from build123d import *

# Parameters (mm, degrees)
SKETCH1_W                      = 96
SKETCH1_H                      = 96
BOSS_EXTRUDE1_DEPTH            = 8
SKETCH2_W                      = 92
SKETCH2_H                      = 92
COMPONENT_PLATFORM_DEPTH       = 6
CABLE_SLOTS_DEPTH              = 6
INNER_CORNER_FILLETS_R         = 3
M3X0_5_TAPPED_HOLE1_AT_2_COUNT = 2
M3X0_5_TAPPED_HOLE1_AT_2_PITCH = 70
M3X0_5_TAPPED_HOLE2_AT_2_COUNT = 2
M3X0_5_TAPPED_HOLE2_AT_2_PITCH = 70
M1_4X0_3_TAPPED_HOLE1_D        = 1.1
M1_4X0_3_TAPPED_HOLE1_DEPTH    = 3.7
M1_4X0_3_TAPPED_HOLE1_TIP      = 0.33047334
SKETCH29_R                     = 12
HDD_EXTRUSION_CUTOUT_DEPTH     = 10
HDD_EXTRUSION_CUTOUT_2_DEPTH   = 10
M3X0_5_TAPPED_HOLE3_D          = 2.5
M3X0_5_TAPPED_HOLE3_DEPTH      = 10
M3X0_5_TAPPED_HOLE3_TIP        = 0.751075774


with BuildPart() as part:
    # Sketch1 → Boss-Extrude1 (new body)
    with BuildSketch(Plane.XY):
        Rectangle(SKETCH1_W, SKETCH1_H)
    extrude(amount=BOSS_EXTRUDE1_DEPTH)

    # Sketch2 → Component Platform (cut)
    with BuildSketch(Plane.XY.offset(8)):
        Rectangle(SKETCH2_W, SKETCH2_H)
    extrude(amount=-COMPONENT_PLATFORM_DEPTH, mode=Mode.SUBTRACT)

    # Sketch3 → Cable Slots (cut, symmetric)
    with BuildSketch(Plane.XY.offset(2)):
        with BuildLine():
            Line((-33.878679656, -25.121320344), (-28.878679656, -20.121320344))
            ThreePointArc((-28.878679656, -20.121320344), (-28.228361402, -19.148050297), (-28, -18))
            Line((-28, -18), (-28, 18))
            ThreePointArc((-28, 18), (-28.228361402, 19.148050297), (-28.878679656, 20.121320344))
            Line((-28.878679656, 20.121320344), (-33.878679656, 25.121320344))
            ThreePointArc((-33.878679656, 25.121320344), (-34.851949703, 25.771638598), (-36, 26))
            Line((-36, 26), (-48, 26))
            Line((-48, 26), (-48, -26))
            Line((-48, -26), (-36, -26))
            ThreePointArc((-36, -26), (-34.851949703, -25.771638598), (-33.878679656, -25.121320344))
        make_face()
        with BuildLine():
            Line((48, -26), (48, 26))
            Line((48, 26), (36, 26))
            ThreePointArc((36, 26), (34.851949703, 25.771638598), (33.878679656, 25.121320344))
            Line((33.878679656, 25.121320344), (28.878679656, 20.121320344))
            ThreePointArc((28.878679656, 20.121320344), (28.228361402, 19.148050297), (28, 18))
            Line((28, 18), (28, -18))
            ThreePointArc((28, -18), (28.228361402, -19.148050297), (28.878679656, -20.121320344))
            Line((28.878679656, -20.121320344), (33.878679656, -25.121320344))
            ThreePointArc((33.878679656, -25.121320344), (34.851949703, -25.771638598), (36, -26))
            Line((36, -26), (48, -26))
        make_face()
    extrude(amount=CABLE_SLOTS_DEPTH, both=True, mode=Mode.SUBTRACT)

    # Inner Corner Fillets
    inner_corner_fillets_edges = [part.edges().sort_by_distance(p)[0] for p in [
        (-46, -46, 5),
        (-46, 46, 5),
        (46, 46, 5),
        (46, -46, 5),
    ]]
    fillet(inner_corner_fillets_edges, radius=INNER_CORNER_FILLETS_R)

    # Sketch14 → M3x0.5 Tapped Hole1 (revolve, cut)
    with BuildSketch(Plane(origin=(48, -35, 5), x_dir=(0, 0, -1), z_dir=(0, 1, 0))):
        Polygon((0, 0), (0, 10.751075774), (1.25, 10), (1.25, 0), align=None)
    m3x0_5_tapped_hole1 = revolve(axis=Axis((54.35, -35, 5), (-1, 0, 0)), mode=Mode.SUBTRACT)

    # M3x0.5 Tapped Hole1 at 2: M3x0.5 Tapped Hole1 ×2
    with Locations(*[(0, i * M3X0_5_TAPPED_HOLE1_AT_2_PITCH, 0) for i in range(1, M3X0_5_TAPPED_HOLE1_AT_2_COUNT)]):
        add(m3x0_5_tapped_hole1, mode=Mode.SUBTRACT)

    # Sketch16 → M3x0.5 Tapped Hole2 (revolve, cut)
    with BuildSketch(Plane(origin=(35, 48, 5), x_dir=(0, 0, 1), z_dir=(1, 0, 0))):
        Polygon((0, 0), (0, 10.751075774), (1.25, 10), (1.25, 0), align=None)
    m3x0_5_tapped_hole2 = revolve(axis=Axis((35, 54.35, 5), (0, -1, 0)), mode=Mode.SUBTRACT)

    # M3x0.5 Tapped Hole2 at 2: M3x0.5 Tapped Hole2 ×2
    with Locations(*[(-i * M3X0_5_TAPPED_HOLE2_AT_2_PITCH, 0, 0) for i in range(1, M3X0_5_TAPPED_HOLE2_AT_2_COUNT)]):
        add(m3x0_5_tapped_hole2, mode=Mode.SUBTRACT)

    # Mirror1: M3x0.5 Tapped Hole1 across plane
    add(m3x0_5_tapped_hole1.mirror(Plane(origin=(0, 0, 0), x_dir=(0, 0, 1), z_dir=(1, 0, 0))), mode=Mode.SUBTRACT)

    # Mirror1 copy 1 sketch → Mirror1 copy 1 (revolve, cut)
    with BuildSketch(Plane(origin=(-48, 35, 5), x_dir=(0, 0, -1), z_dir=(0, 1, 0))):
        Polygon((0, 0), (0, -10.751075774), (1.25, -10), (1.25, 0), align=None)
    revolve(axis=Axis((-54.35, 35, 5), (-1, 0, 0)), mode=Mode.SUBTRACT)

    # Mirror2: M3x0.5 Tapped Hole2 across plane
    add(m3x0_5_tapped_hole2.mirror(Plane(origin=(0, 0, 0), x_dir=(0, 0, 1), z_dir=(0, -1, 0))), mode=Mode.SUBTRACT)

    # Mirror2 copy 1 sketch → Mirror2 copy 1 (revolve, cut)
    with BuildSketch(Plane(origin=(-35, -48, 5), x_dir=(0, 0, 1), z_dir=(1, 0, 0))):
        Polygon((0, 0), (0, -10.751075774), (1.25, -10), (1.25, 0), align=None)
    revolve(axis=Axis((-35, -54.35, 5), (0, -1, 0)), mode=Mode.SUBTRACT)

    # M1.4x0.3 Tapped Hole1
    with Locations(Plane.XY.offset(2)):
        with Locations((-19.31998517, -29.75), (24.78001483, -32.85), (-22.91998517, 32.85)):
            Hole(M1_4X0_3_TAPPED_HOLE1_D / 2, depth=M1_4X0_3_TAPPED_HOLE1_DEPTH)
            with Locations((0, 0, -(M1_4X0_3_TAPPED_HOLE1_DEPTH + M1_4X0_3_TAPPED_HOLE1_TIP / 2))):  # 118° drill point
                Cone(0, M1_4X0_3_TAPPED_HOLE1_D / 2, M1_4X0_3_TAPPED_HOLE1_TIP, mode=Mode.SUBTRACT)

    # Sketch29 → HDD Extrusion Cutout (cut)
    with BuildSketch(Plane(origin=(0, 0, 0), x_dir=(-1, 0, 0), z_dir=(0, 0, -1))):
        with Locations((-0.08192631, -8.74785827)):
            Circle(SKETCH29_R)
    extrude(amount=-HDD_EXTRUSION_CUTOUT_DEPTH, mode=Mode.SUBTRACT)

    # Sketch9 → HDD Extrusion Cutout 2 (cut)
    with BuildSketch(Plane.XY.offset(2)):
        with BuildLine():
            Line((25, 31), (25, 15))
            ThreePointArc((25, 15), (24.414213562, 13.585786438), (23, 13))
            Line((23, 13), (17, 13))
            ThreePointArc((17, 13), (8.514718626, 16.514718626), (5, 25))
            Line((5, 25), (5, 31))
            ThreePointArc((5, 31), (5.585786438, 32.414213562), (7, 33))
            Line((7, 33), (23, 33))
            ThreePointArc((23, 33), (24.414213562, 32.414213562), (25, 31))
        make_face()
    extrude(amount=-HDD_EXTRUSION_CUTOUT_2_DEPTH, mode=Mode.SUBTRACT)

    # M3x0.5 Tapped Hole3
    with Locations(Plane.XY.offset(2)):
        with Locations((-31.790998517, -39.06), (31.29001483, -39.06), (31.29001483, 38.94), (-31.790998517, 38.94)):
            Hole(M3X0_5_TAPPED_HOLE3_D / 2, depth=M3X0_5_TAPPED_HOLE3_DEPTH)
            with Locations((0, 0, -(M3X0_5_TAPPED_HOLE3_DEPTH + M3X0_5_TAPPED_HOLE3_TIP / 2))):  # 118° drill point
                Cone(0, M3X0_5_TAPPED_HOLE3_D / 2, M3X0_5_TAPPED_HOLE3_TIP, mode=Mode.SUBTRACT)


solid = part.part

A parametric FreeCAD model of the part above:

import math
import FreeCAD as App
import Part
import Sketcher

V = App.Vector
Q = App.Units.Quantity


def edges_at(feature, points):
    """Names of the edges that pass closest to the given points."""
    edges = feature.Shape.Edges
    near = lambda p: min(range(len(edges)), key=lambda i: edges[i].distToShape(Part.Vertex(*p))[0])
    return sorted({f"Edge{near(p) + 1}" for p in points})


def add_polygon(sketch, points):
    """Adds a closed chain of lines whose ends are joined by coincident constraints."""
    first, n = sketch.GeometryCount, len(points)
    for a, b in zip(points, points[1:] + points[:1]):
        sketch.addGeometry(Part.LineSegment(App.Vector(*a, 0), App.Vector(*b, 0)), False)
    for i in range(n):
        sketch.addConstraint(Sketcher.Constraint("Coincident", first + i, 2, first + (i + 1) % n, 1))

doc = App.newDocument("Part")
body = doc.addObject("PartDesign::Body", "Body")

# Sketch on XY plane
sketch1 = body.newObject("Sketcher::SketchObject", "Sketch")
sketch1.AttachmentSupport = (doc.getObject("XY_Plane"), [""])
sketch1.MapMode = "FlatFace"
add_polygon(sketch1, [(-48, 48), (-48, -48), (48, -48), (48, 48)])  # lines 0-3
sketch1.addConstraint(Sketcher.Constraint("Vertical", 0))
sketch1.addConstraint(Sketcher.Constraint("Horizontal", 1))
sketch1.addConstraint(Sketcher.Constraint("Vertical", 2))
sketch1.addConstraint(Sketcher.Constraint("Horizontal", 3))
sketch1.addConstraint(Sketcher.Constraint("Symmetric", 0, 2, 2, 2, -1, 1))
sketch1.addConstraint(Sketcher.Constraint("Equal", 3, 0))
sketch1.addConstraint(Sketcher.Constraint("DistanceX", 1, 1, 1, 2, 96.0))
pad1 = body.newObject("PartDesign::Pad", "Pad")
pad1.Profile = sketch1
pad1.Length = 8

# Sketch on XY plane
sketch2 = body.newObject("Sketcher::SketchObject", "Sketch001")
sketch2.AttachmentSupport = (doc.getObject("XY_Plane"), [""])
sketch2.MapMode = "FlatFace"
sketch2.AttachmentOffset = App.Placement(V(0, 0, 8), App.Rotation())
add_polygon(sketch2, [(-46, 46), (-46, -46), (46, -46), (46, 46)])  # lines 0-3
sketch2.addConstraint(Sketcher.Constraint("Vertical", 0))
sketch2.addConstraint(Sketcher.Constraint("Horizontal", 1))
sketch2.addConstraint(Sketcher.Constraint("Vertical", 2))
sketch2.addConstraint(Sketcher.Constraint("Horizontal", 3))
sketch2.addConstraint(Sketcher.Constraint("Symmetric", 0, 2, 2, 2, -1, 1))
sketch2.addConstraint(Sketcher.Constraint("Equal", 3, 0))
sketch2.addConstraint(Sketcher.Constraint("DistanceX", 1, 1, 1, 2, 92.0))
pocket1 = body.newObject("PartDesign::Pocket", "Pocket")
pocket1.Profile = sketch2
pocket1.Length = 6

# Sketch on XY plane
sketch3 = body.newObject("Sketcher::SketchObject", "Sketch002")
sketch3.AttachmentSupport = (doc.getObject("XY_Plane"), [""])
sketch3.MapMode = "FlatFace"
sketch3.AttachmentOffset = App.Placement(V(0, 0, 2), App.Rotation())
sketch3.addGeometry(Part.LineSegment(V(-33.9, -25.1, 0), V(-28.9, -20.1, 0)), False)
sketch3.addGeometry(Part.ArcOfCircle(Part.Circle(V(-31, -18, 0), V(0, 0, 1), 3), math.radians(-45), math.radians(0)), False)
sketch3.addGeometry(Part.LineSegment(V(-28, -18, 0), V(-28, 18, 0)), False)
sketch3.addGeometry(Part.ArcOfCircle(Part.Circle(V(-31, 18, 0), V(0, 0, 1), 3), math.radians(0), math.radians(45)), False)
sketch3.addGeometry(Part.LineSegment(V(-28.9, 20.1, 0), V(-33.9, 25.1, 0)), False)
sketch3.addGeometry(Part.ArcOfCircle(Part.Circle(V(-36, 23, 0), V(0, 0, 1), 3), math.radians(45), math.radians(90)), False)
sketch3.addGeometry(Part.LineSegment(V(-36, 26, 0), V(-48, 26, 0)), False)
sketch3.addGeometry(Part.LineSegment(V(-48, 26, 0), V(-48, -26, 0)), False)
sketch3.addGeometry(Part.LineSegment(V(-48, -26, 0), V(-36, -26, 0)), False)
sketch3.addGeometry(Part.ArcOfCircle(Part.Circle(V(-36, -23, 0), V(0, 0, 1), 3), math.radians(-90), math.radians(-45)), False)
sketch3.addGeometry(Part.LineSegment(V(48, -26, 0), V(48, 26, 0)), False)
sketch3.addGeometry(Part.LineSegment(V(48, 26, 0), V(36, 26, 0)), False)
sketch3.addGeometry(Part.ArcOfCircle(Part.Circle(V(36, 23, 0), V(0, 0, 1), 3), math.radians(90), math.radians(135)), False)
sketch3.addGeometry(Part.LineSegment(V(33.9, 25.1, 0), V(28.9, 20.1, 0)), False)
sketch3.addGeometry(Part.ArcOfCircle(Part.Circle(V(31, 18, 0), V(0, 0, 1), 3), math.radians(135), math.radians(180)), False)
sketch3.addGeometry(Part.LineSegment(V(28, 18, 0), V(28, -18, 0)), False)
sketch3.addGeometry(Part.ArcOfCircle(Part.Circle(V(31, -18, 0), V(0, 0, 1), 3), math.radians(180), math.radians(225)), False)
sketch3.addGeometry(Part.LineSegment(V(28.9, -20.1, 0), V(33.9, -25.1, 0)), False)
sketch3.addGeometry(Part.ArcOfCircle(Part.Circle(V(36, -23, 0), V(0, 0, 1), 3), math.radians(-135), math.radians(-90)), False)
sketch3.addGeometry(Part.LineSegment(V(36, -26, 0), V(48, -26, 0)), False)
sketch3.addConstraint(Sketcher.Constraint("Tangent", 0, 2, 1, 1))
sketch3.addConstraint(Sketcher.Constraint("Tangent", 1, 2, 2, 1))
sketch3.addConstraint(Sketcher.Constraint("Tangent", 2, 2, 3, 1))
sketch3.addConstraint(Sketcher.Constraint("Tangent", 3, 2, 4, 1))
sketch3.addConstraint(Sketcher.Constraint("Tangent", 4, 2, 5, 1))
sketch3.addConstraint(Sketcher.Constraint("Tangent", 5, 2, 6, 1))
sketch3.addConstraint(Sketcher.Constraint("Coincident", 6, 2, 7, 1))
sketch3.addConstraint(Sketcher.Constraint("Coincident", 7, 2, 8, 1))
sketch3.addConstraint(Sketcher.Constraint("Tangent", 8, 2, 9, 1))
sketch3.addConstraint(Sketcher.Constraint("Tangent", 9, 2, 0, 1))
sketch3.addConstraint(Sketcher.Constraint("Coincident", 10, 2, 11, 1))
sketch3.addConstraint(Sketcher.Constraint("Tangent", 11, 2, 12, 1))
sketch3.addConstraint(Sketcher.Constraint("Tangent", 12, 2, 13, 1))
sketch3.addConstraint(Sketcher.Constraint("Tangent", 13, 2, 14, 1))
sketch3.addConstraint(Sketcher.Constraint("Tangent", 14, 2, 15, 1))
sketch3.addConstraint(Sketcher.Constraint("Tangent", 15, 2, 16, 1))
sketch3.addConstraint(Sketcher.Constraint("Tangent", 16, 2, 17, 1))
sketch3.addConstraint(Sketcher.Constraint("Tangent", 17, 2, 18, 1))
sketch3.addConstraint(Sketcher.Constraint("Tangent", 18, 2, 19, 1))
sketch3.addConstraint(Sketcher.Constraint("Coincident", 19, 2, 10, 1))
sketch3.addConstraint(Sketcher.Constraint("Vertical", 2))
sketch3.addConstraint(Sketcher.Constraint("Horizontal", 6))
sketch3.addConstraint(Sketcher.Constraint("Vertical", 7))
sketch3.addConstraint(Sketcher.Constraint("Horizontal", 8))
sketch3.addConstraint(Sketcher.Constraint("Vertical", 10))
sketch3.addConstraint(Sketcher.Constraint("Horizontal", 11))
sketch3.addConstraint(Sketcher.Constraint("Vertical", 15))
sketch3.addConstraint(Sketcher.Constraint("Horizontal", 19))
sketch3.addConstraint(Sketcher.Constraint("Equal", 1, 3))
sketch3.addConstraint(Sketcher.Constraint("Equal", 3, 5))
sketch3.addConstraint(Sketcher.Constraint("Equal", 5, 9))
sketch3.addConstraint(Sketcher.Constraint("Equal", 9, 12))
sketch3.addConstraint(Sketcher.Constraint("Equal", 12, 14))
sketch3.addConstraint(Sketcher.Constraint("Equal", 14, 16))
sketch3.addConstraint(Sketcher.Constraint("Equal", 16, 18))
sketch3.addConstraint(Sketcher.Constraint("Symmetric", 9, 3, 12, 3, -1, 1))
sketch3.addConstraint(Sketcher.Constraint("Symmetric", 1, 3, 14, 3, -1, 1))
sketch3.addConstraint(Sketcher.Constraint("Symmetric", 5, 3, 18, 3, -1, 1))
sketch3.addConstraint(Sketcher.Constraint("Symmetric", 5, 3, 12, 3, -2))
sketch3.addConstraint(Sketcher.Constraint("Perpendicular", 0, 4))
sketch3.addConstraint(Sketcher.Constraint("Perpendicular", 13, 17))
sketch3.addConstraint(Sketcher.Constraint("Horizontal", 3, 3, 14, 3))
sketch3.addConstraint(Sketcher.Constraint("Equal", 8, 11))
sketch3.addConstraint(Sketcher.Constraint("Radius", 1, 3.0))
sketch3.addConstraint(Sketcher.Constraint("DistanceX", 6, 2, 6, 1, 12.0))
sketch3.addConstraint(Sketcher.Constraint("DistanceY", 2, 1, 2, 2, 36.0))
sketch3.addConstraint(Sketcher.Constraint("DistanceY", 7, 2, 7, 1, 52.0))
sketch3.addConstraint(Sketcher.Constraint("DistanceX", 1, 3, -1, 1, 31.0))
pocket2 = body.newObject("PartDesign::Pocket", "Pocket001")
pocket2.Profile = sketch3
pocket2.Length = 12
pocket2.Midplane = True
doc.recompute()

fillet = body.newObject("PartDesign::Fillet", "Fillet")
fillet.Base = (pocket2, edges_at(pocket2, [
    (-46, -46, 5),
    (-46, 46, 5),
    (46, 46, 5),
    (46, -46, 5),
]))
fillet.Radius = 3

# Sketch on XZ plane
sketch4 = body.newObject("Sketcher::SketchObject", "Sketch003")
sketch4.AttachmentSupport = (doc.getObject("XZ_Plane"), [""])
sketch4.MapMode = "FlatFace"
sketch4.AttachmentOffset = App.Placement(V(0, 0, 35), App.Rotation())
add_polygon(sketch4, [(37.2, 5), (48, 5), (48, 3.8), (38, 3.8)])  # lines 0-3
sketch4.addGeometry(Part.LineSegment(V(48, 5, 0), V(37.2, 5, 0)), True)  # axis
sketch4.addConstraint(Sketcher.Constraint("Horizontal", 0))
sketch4.addConstraint(Sketcher.Constraint("Vertical", 1))
sketch4.addConstraint(Sketcher.Constraint("Horizontal", 2))
sketch4.addConstraint(Sketcher.Constraint("Horizontal", 4))
sketch4.addConstraint(Sketcher.Constraint("Coincident", 4, 1, 0, 2))
sketch4.addConstraint(Sketcher.Constraint("Equal", 0, 4))
sketch4.addConstraint(Sketcher.Constraint("DistanceX", 2, 2, 2, 1, 10.0))
sketch4.addConstraint(Sketcher.Constraint("Angle", 3, Q("121 deg")))
sketch4.addConstraint(Sketcher.Constraint("DistanceX", -1, 1, 0, 2, 48.0))
sketch4.addConstraint(Sketcher.Constraint("DistanceY", -1, 1, 0, 2, 5.0))
sketch4.addConstraint(Sketcher.Constraint("DistanceY", 1, 2, 1, 1, 1.25))
groove = body.newObject("PartDesign::Groove", "Groove")
groove.Profile = sketch4
groove.ReferenceAxis = (sketch4, ["Axis0"])
groove.Angle = 360
doc.recompute()

linearpattern = body.newObject("PartDesign::LinearPattern", "LinearPattern")
linearpattern.Originals = [groove]
linearpattern.Direction = (doc.getObject("Y_Axis"), [""])
linearpattern.Mode = "offset"
linearpattern.Offset = 70
linearpattern.Occurrences = 2
body.Tip = linearpattern

# Sketch on YZ plane
sketch5 = body.newObject("Sketcher::SketchObject", "Sketch004")
sketch5.AttachmentSupport = (doc.getObject("YZ_Plane"), [""])
sketch5.MapMode = "FlatFace"
sketch5.AttachmentOffset = App.Placement(V(0, 0, 35), App.Rotation())
add_polygon(sketch5, [(37.2, 5), (48, 5), (48, 6.2), (38, 6.2)])  # lines 0-3
sketch5.addGeometry(Part.LineSegment(V(48, 5, 0), V(37.2, 5, 0)), True)  # axis
sketch5.addConstraint(Sketcher.Constraint("Horizontal", 0))
sketch5.addConstraint(Sketcher.Constraint("Vertical", 1))
sketch5.addConstraint(Sketcher.Constraint("Horizontal", 2))
sketch5.addConstraint(Sketcher.Constraint("Horizontal", 4))
sketch5.addConstraint(Sketcher.Constraint("Coincident", 4, 1, 0, 2))
sketch5.addConstraint(Sketcher.Constraint("Equal", 0, 4))
sketch5.addConstraint(Sketcher.Constraint("DistanceX", 2, 2, 2, 1, 10.0))
sketch5.addConstraint(Sketcher.Constraint("Angle", 3, Q("-121 deg")))
sketch5.addConstraint(Sketcher.Constraint("DistanceX", -1, 1, 0, 2, 48.0))
sketch5.addConstraint(Sketcher.Constraint("DistanceY", -1, 1, 0, 2, 5.0))
sketch5.addConstraint(Sketcher.Constraint("DistanceY", 1, 1, 1, 2, 1.25))
groove2 = body.newObject("PartDesign::Groove", "Groove001")
groove2.Profile = sketch5
groove2.ReferenceAxis = (sketch5, ["Axis0"])
groove2.Angle = 360
doc.recompute()

linearpattern2 = body.newObject("PartDesign::LinearPattern", "LinearPattern001")
linearpattern2.Originals = [groove2]
linearpattern2.Direction = (doc.getObject("X_Axis"), [""])
linearpattern2.Mode = "offset"
linearpattern2.Offset = 70
linearpattern2.Occurrences = 2
linearpattern2.Reversed = True
body.Tip = linearpattern2
doc.recompute()

mirrored = body.newObject("PartDesign::Mirrored", "Mirrored")
mirrored.Originals = [groove]
mirrored.MirrorPlane = (doc.getObject("YZ_Plane"), [""])
body.Tip = mirrored

# Sketch on XZ plane
sketch6 = body.newObject("Sketcher::SketchObject", "Sketch005")
sketch6.AttachmentSupport = (doc.getObject("XZ_Plane"), [""])
sketch6.MapMode = "FlatFace"
sketch6.AttachmentOffset = App.Placement(V(0, 0, -35), App.Rotation())
add_polygon(sketch6, [(-48, 5), (-37.2, 5), (-38, 3.8), (-48, 3.8)])  # lines 0-3
sketch6.addGeometry(Part.LineSegment(V(-37.2, 5, 0), V(-48, 5, 0)), True)  # axis
sketch6.addConstraint(Sketcher.Constraint("Horizontal", 0))
sketch6.addConstraint(Sketcher.Constraint("Horizontal", 2))
sketch6.addConstraint(Sketcher.Constraint("Vertical", 3))
sketch6.addConstraint(Sketcher.Constraint("Horizontal", 4))
sketch6.addConstraint(Sketcher.Constraint("Coincident", 4, 1, 0, 2))
sketch6.addConstraint(Sketcher.Constraint("Vertical", 2, 2, 4, 2))
sketch6.addConstraint(Sketcher.Constraint("DistanceX", 2, 2, 2, 1, 10.0))
sketch6.addConstraint(Sketcher.Constraint("Angle", 1, Q("-121 deg")))
sketch6.addConstraint(Sketcher.Constraint("DistanceY", -1, 1, 0, 2, 5.0))
sketch6.addConstraint(Sketcher.Constraint("DistanceX", 1, 2, -1, 1, 38.0))
sketch6.addConstraint(Sketcher.Constraint("DistanceY", 3, 1, 3, 2, 1.25))
groove3 = body.newObject("PartDesign::Groove", "Groove002")
groove3.Profile = sketch6
groove3.ReferenceAxis = (sketch6, ["Axis0"])
groove3.Angle = 360
doc.recompute()

mirrored2 = body.newObject("PartDesign::Mirrored", "Mirrored001")
mirrored2.Originals = [groove2]
mirrored2.MirrorPlane = (doc.getObject("XZ_Plane"), [""])
body.Tip = mirrored2

# Sketch on YZ plane
sketch7 = body.newObject("Sketcher::SketchObject", "Sketch006")
sketch7.AttachmentSupport = (doc.getObject("YZ_Plane"), [""])
sketch7.MapMode = "FlatFace"
sketch7.AttachmentOffset = App.Placement(V(0, 0, -35), App.Rotation())
add_polygon(sketch7, [(-48, 5), (-37.2, 5), (-38, 6.2), (-48, 6.2)])  # lines 0-3
sketch7.addGeometry(Part.LineSegment(V(-37.2, 5, 0), V(-48, 5, 0)), True)  # axis
sketch7.addConstraint(Sketcher.Constraint("Horizontal", 0))
sketch7.addConstraint(Sketcher.Constraint("Horizontal", 2))
sketch7.addConstraint(Sketcher.Constraint("Vertical", 3))
sketch7.addConstraint(Sketcher.Constraint("Horizontal", 4))
sketch7.addConstraint(Sketcher.Constraint("Coincident", 4, 1, 0, 2))
sketch7.addConstraint(Sketcher.Constraint("Vertical", 2, 2, 4, 2))
sketch7.addConstraint(Sketcher.Constraint("DistanceX", 2, 2, 2, 1, 10.0))
sketch7.addConstraint(Sketcher.Constraint("Angle", 1, Q("121 deg")))
sketch7.addConstraint(Sketcher.Constraint("DistanceY", -1, 1, 0, 2, 5.0))
sketch7.addConstraint(Sketcher.Constraint("DistanceX", 1, 2, -1, 1, 38.0))
sketch7.addConstraint(Sketcher.Constraint("DistanceY", 3, 2, 3, 1, 1.25))
groove4 = body.newObject("PartDesign::Groove", "Groove003")
groove4.Profile = sketch7
groove4.ReferenceAxis = (sketch7, ["Axis0"])
groove4.Angle = 360

# Sketch on XY plane
sketch8 = body.newObject("Sketcher::SketchObject", "Sketch007")
sketch8.AttachmentSupport = (doc.getObject("XY_Plane"), [""])
sketch8.MapMode = "FlatFace"
sketch8.AttachmentOffset = App.Placement(V(0, 0, 2), App.Rotation())
sketch8.addGeometry(Part.Circle(V(-19.3, -29.8, 0), V(0, 0, 1), 0.6), False)
sketch8.addGeometry(Part.Circle(V(24.8, -32.9, 0), V(0, 0, 1), 0.6), False)
sketch8.addGeometry(Part.Circle(V(-22.9, 32.9, 0), V(0, 0, 1), 0.6), False)
sketch8.addConstraint(Sketcher.Constraint("Equal", 0, 1))
sketch8.addConstraint(Sketcher.Constraint("Equal", 1, 2))
sketch8.addConstraint(Sketcher.Constraint("Diameter", 0, 1.1))
sketch8.addConstraint(Sketcher.Constraint("DistanceX", 0, 3, 1, 3, 44.1))
sketch8.addConstraint(Sketcher.Constraint("DistanceY", 1, 3, 0, 3, 3.1))
sketch8.addConstraint(Sketcher.Constraint("DistanceX", 2, 3, 0, 3, 3.6))
sketch8.addConstraint(Sketcher.Constraint("DistanceY", 0, 3, 2, 3, 62.6))
sketch8.addConstraint(Sketcher.Constraint("DistanceY", 0, 3, -1, 1, 29.75))
sketch8.addConstraint(Sketcher.Constraint("DistanceX", 0, 3, -1, 1, 19.319985))
doc.recompute()
hole = body.newObject("PartDesign::Hole", "Hole")
hole.Profile = sketch8
hole.ThreadType = "None"
hole.Diameter = 1.1
hole.DepthType = "Dimension"
hole.Depth = 3.7
hole.DrillPoint = "Angled"
hole.DrillPointAngle = 118

# Sketch on XY plane
sketch9 = body.newObject("Sketcher::SketchObject", "Sketch008")
sketch9.AttachmentSupport = (doc.getObject("XY_Plane"), [""])
sketch9.MapMode = "FlatFace"
sketch9.addGeometry(Part.Circle(V(0, -9, 0), V(0, 0, 1), 12), False)
sketch9.addConstraint(Sketcher.Constraint("Diameter", 0, 24.0))
sketch9.addConstraint(Sketcher.Constraint("DistanceY", 0, 3, -1, 1, 8.747858))
sketch9.addConstraint(Sketcher.Constraint("DistanceX", -1, 1, 0, 3, 0.081926))
pocket3 = body.newObject("PartDesign::Pocket", "Pocket002")
pocket3.Profile = sketch9
pocket3.Length = 10
pocket3.Reversed = True

# Sketch on XY plane
sketch10 = body.newObject("Sketcher::SketchObject", "Sketch009")
sketch10.AttachmentSupport = (doc.getObject("XY_Plane"), [""])
sketch10.MapMode = "FlatFace"
sketch10.AttachmentOffset = App.Placement(V(0, 0, 2), App.Rotation())
sketch10.addGeometry(Part.LineSegment(V(25, 15, 0), V(25, 31, 0)), False)
sketch10.addGeometry(Part.ArcOfCircle(Part.Circle(V(23, 31, 0), V(0, 0, 1), 2), math.radians(0), math.radians(90)), False)
sketch10.addGeometry(Part.LineSegment(V(23, 33, 0), V(7, 33, 0)), False)
sketch10.addGeometry(Part.ArcOfCircle(Part.Circle(V(7, 31, 0), V(0, 0, 1), 2), math.radians(90), math.radians(180)), False)
sketch10.addGeometry(Part.LineSegment(V(5, 31, 0), V(5, 25, 0)), False)
sketch10.addGeometry(Part.ArcOfCircle(Part.Circle(V(17, 25, 0), V(0, 0, 1), 12), math.radians(-180), math.radians(-90)), False)
sketch10.addGeometry(Part.LineSegment(V(17, 13, 0), V(23, 13, 0)), False)
sketch10.addGeometry(Part.ArcOfCircle(Part.Circle(V(23, 15, 0), V(0, 0, 1), 2), math.radians(-90), math.radians(0)), False)
sketch10.addConstraint(Sketcher.Constraint("Tangent", 0, 2, 1, 1))
sketch10.addConstraint(Sketcher.Constraint("Tangent", 1, 2, 2, 1))
sketch10.addConstraint(Sketcher.Constraint("Tangent", 2, 2, 3, 1))
sketch10.addConstraint(Sketcher.Constraint("Tangent", 3, 2, 4, 1))
sketch10.addConstraint(Sketcher.Constraint("Tangent", 4, 2, 5, 1))
sketch10.addConstraint(Sketcher.Constraint("Tangent", 5, 2, 6, 1))
sketch10.addConstraint(Sketcher.Constraint("Tangent", 6, 2, 7, 1))
sketch10.addConstraint(Sketcher.Constraint("Tangent", 7, 2, 0, 1))
sketch10.addConstraint(Sketcher.Constraint("Vertical", 0))
sketch10.addConstraint(Sketcher.Constraint("Horizontal", 2))
sketch10.addConstraint(Sketcher.Constraint("Vertical", 4))
sketch10.addConstraint(Sketcher.Constraint("Horizontal", 6))
sketch10.addConstraint(Sketcher.Constraint("Equal", 1, 3))
sketch10.addConstraint(Sketcher.Constraint("Equal", 3, 7))
sketch10.addConstraint(Sketcher.Constraint("Equal", 2, 0))
sketch10.addConstraint(Sketcher.Constraint("Radius", 1, 2.0))
sketch10.addConstraint(Sketcher.Constraint("Radius", 5, 12.0))
sketch10.addConstraint(Sketcher.Constraint("DistanceX", 2, 2, 2, 1, 16.0))
sketch10.addConstraint(Sketcher.Constraint("DistanceX", -1, 1, 1, 3, 23.0))
sketch10.addConstraint(Sketcher.Constraint("DistanceY", -1, 1, 1, 3, 31.0))
pocket4 = body.newObject("PartDesign::Pocket", "Pocket003")
pocket4.Profile = sketch10
pocket4.Length = 10

# Sketch on XY plane
sketch11 = body.newObject("Sketcher::SketchObject", "Sketch010")
sketch11.AttachmentSupport = (doc.getObject("XY_Plane"), [""])
sketch11.MapMode = "FlatFace"
sketch11.AttachmentOffset = App.Placement(V(0, 0, 2), App.Rotation())
sketch11.addGeometry(Part.Circle(V(-31.8, -39.1, 0), V(0, 0, 1), 1.2), False)
sketch11.addGeometry(Part.Circle(V(31.3, -39.1, 0), V(0, 0, 1), 1.2), False)
sketch11.addGeometry(Part.Circle(V(31.3, 38.9, 0), V(0, 0, 1), 1.2), False)
sketch11.addGeometry(Part.Circle(V(-31.8, 38.9, 0), V(0, 0, 1), 1.2), False)
sketch11.addConstraint(Sketcher.Constraint("Equal", 0, 1))
sketch11.addConstraint(Sketcher.Constraint("Equal", 1, 2))
sketch11.addConstraint(Sketcher.Constraint("Equal", 2, 3))
sketch11.addConstraint(Sketcher.Constraint("Horizontal", 0, 3, 1, 3))
sketch11.addConstraint(Sketcher.Constraint("Horizontal", 2, 3, 3, 3))
sketch11.addConstraint(Sketcher.Constraint("Vertical", 1, 3, 2, 3))
sketch11.addConstraint(Sketcher.Constraint("Vertical", 0, 3, 3, 3))
sketch11.addConstraint(Sketcher.Constraint("Diameter", 0, 2.5))
sketch11.addConstraint(Sketcher.Constraint("DistanceY", 1, 3, 2, 3, 78.0))
sketch11.addConstraint(Sketcher.Constraint("DistanceY", 0, 3, -1, 1, 39.06))
sketch11.addConstraint(Sketcher.Constraint("DistanceX", 0, 3, -1, 1, 31.790999))
sketch11.addConstraint(Sketcher.Constraint("DistanceX", -1, 1, 1, 3, 31.290015))
doc.recompute()
hole2 = body.newObject("PartDesign::Hole", "Hole001")
hole2.Profile = sketch11
hole2.ThreadType = "None"
hole2.Diameter = 2.5
hole2.DepthType = "Dimension"
hole2.Depth = 10
hole2.DrillPoint = "Angled"
hole2.DrillPointAngle = 118

doc.recompute()
